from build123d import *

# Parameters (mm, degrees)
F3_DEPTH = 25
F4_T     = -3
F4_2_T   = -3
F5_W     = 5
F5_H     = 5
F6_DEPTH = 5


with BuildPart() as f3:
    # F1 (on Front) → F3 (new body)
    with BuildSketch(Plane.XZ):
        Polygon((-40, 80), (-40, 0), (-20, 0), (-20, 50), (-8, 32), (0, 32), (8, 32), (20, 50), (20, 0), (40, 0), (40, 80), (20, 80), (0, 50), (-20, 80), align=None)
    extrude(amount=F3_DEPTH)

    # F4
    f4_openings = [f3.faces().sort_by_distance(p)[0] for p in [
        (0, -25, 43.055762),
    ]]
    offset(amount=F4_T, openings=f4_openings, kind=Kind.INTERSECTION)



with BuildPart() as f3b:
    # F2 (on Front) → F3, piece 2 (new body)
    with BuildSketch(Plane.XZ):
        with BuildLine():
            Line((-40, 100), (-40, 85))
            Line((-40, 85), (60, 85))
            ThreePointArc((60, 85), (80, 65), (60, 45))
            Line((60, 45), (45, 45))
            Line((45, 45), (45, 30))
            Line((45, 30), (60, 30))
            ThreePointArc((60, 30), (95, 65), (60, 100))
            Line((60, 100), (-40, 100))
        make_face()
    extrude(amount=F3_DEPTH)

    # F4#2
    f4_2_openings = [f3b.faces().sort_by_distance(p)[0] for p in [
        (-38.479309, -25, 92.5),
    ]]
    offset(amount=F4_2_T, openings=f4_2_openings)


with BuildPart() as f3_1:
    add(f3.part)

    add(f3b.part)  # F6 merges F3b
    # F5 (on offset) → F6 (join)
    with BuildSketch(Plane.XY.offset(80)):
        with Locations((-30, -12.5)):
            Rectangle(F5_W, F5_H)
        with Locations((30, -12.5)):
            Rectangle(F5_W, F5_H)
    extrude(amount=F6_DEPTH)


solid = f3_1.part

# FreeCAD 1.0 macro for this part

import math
import FreeCAD as App
import Part
import Sketcher
from FreeCAD import Vector
Q = App.Units.Quantity


def faces_at(feature, points):
    """Names of the faces that lie closest to the given points."""
    faces = feature.Shape.Faces
    near = lambda p: min(range(len(faces)), key=lambda i: faces[i].distToShape(Part.Vertex(*p))[0])
    return sorted({f"Face{near(p) + 1}" for p in points})

doc = App.newDocument("Part")
body = doc.addObject("PartDesign::Body", "Body")

# Sketch on XZ plane
sketch1 = body.newObject("Sketcher::SketchObject", "Sketch")
sketch1.AttachmentSupport = (doc.getObject("XZ_Plane"), [""])
sketch1.MapMode = "FlatFace"
sketch1.addGeometry([
    Part.LineSegment(Vector(-40, 80, 0), Vector(-40, 0, 0)),  # 0
    Part.LineSegment(Vector(-40, 0, 0), Vector(-20, 0, 0)),  # 1
    Part.LineSegment(Vector(-20, 0, 0), Vector(-20, 50, 0)),  # 2
    Part.LineSegment(Vector(-20, 50, 0), Vector(-8, 32, 0)),  # 3
    Part.LineSegment(Vector(-8, 32, 0), Vector(8, 32, 0)),  # 4
    Part.LineSegment(Vector(8, 32, 0), Vector(20, 50, 0)),  # 5
    Part.LineSegment(Vector(20, 50, 0), Vector(20, 0, 0)),  # 6
    Part.LineSegment(Vector(20, 0, 0), Vector(40, 0, 0)),  # 7
    Part.LineSegment(Vector(40, 0, 0), Vector(40, 80, 0)),  # 8
    Part.LineSegment(Vector(40, 80, 0), Vector(20, 80, 0)),  # 9
    Part.LineSegment(Vector(20, 80, 0), Vector(0, 50, 0)),  # 10
    Part.LineSegment(Vector(0, 50, 0), Vector(-20, 80, 0)),  # 11
    Part.LineSegment(Vector(-20, 80, 0), Vector(-40, 80, 0)),  # 12
], False)
sketch1.addConstraint([
    Sketcher.Constraint("Coincident", 0, 2, 1, 1),
    Sketcher.Constraint("Coincident", 1, 2, 2, 1),
    Sketcher.Constraint("Coincident", 2, 2, 3, 1),
    Sketcher.Constraint("Coincident", 3, 2, 4, 1),
    Sketcher.Constraint("Coincident", 4, 2, 5, 1),
    Sketcher.Constraint("Coincident", 5, 2, 6, 1),
    Sketcher.Constraint("Coincident", 6, 2, 7, 1),
    Sketcher.Constraint("Coincident", 7, 2, 8, 1),
    Sketcher.Constraint("Coincident", 8, 2, 9, 1),
    Sketcher.Constraint("Coincident", 9, 2, 10, 1),
    Sketcher.Constraint("Coincident", 10, 2, 11, 1),
    Sketcher.Constraint("Coincident", 11, 2, 12, 1),
    Sketcher.Constraint("Coincident", 12, 2, 0, 1),
    Sketcher.Constraint("Vertical", 0),
    Sketcher.Constraint("Horizontal", 1),
    Sketcher.Constraint("Vertical", 2),
    Sketcher.Constraint("Horizontal", 4),
    Sketcher.Constraint("Vertical", 6),
    Sketcher.Constraint("Horizontal", 7),
    Sketcher.Constraint("Vertical", 8),
    Sketcher.Constraint("Horizontal", 9),
    Sketcher.Constraint("Horizontal", 12),
    Sketcher.Constraint("Symmetric", 1, 2, 6, 2, -1, 1),
    Sketcher.Constraint("Symmetric", 0, 2, 7, 2, -2),
    Sketcher.Constraint("Symmetric", 9, 2, 11, 2, -2),
    Sketcher.Constraint("PointOnObject", 10, 2, -2),
    Sketcher.Constraint("Parallel", 5, 10),
    Sketcher.Constraint("Parallel", 3, 11),
    Sketcher.Constraint("Horizontal", 2, 2, 5, 2),
    Sketcher.Constraint("Horizontal", 5, 2, 10, 2),
    Sketcher.Constraint("Vertical", 6, 2, 9, 2),
    Sketcher.Constraint("DistanceX", 1, 1, 1, 2, Q("20 mm")),
    Sketcher.Constraint("DistanceX", 4, 1, 4, 2, Q("16 mm")),
    Sketcher.Constraint("DistanceY", 0, 2, 0, 1, Q("80 mm")),
    Sketcher.Constraint("DistanceY", 2, 1, 2, 2, Q("50 mm")),
    Sketcher.Constraint("DistanceX", 0, 2, -1, 1, Q("40 mm")),
])
pad1 = body.newObject("PartDesign::Pad", "Pad")
pad1.Profile = sketch1
pad1.Length = 25
doc.recompute()

thickness = body.newObject("PartDesign::Thickness", "Thickness")
thickness.Base = (pad1, faces_at(pad1, [(0, -25, 40)]))
thickness.Value = 3
thickness.Reversed = True
thickness.Join = "Intersection"
body2 = doc.addObject("PartDesign::Body", "Body001")

# Sketch on XZ plane
sketch2 = body2.newObject("Sketcher::SketchObject", "Sketch001")
sketch2.AttachmentSupport = (doc.getObject("XZ_Plane001"), [""])
sketch2.MapMode = "FlatFace"
sketch2.addGeometry([
    Part.LineSegment(Vector(-40, 100, 0), Vector(-40, 85, 0)),  # 0
    Part.LineSegment(Vector(-40, 85, 0), Vector(60, 85, 0)),  # 1
    Part.ArcOfCircle(Part.Circle(Vector(60, 65, 0), Vector(0, 0, 1), 20), math.radians(-90), math.radians(90)),  # 2
    Part.LineSegment(Vector(60, 45, 0), Vector(45, 45, 0)),  # 3
    Part.LineSegment(Vector(45, 45, 0), Vector(45, 30, 0)),  # 4
    Part.LineSegment(Vector(45, 30, 0), Vector(60, 30, 0)),  # 5
    Part.ArcOfCircle(Part.Circle(Vector(60, 65, 0), Vector(0, 0, 1), 35), math.radians(-90), math.radians(90)),  # 6
    Part.LineSegment(Vector(60, 100, 0), Vector(-40, 100, 0)),  # 7
], False)
sketch2.addConstraint([
    Sketcher.Constraint("Coincident", 0, 2, 1, 1),
    Sketcher.Constraint("Tangent", 1, 2, 2, 2),
    Sketcher.Constraint("Tangent", 2, 1, 3, 1),
    Sketcher.Constraint("Coincident", 3, 2, 4, 1),
    Sketcher.Constraint("Coincident", 4, 2, 5, 1),
    Sketcher.Constraint("Tangent", 5, 2, 6, 1),
    Sketcher.Constraint("Tangent", 6, 2, 7, 1),
    Sketcher.Constraint("Coincident", 7, 2, 0, 1),
    Sketcher.Constraint("Vertical", 0),
    Sketcher.Constraint("Horizontal", 1),
    Sketcher.Constraint("Horizontal", 3),
    Sketcher.Constraint("Vertical", 4),
    Sketcher.Constraint("Horizontal", 5),
    Sketcher.Constraint("Horizontal", 7),
    Sketcher.Constraint("Coincident", 6, 3, 2, 3),
    Sketcher.Constraint("Equal", 5, 0),
    Sketcher.Constraint("Radius", 2, Q("20 mm")),
    Sketcher.Constraint("Radius", 6, Q("35 mm")),
    Sketcher.Constraint("DistanceX", 1, 1, 1, 2, Q("100 mm")),
    Sketcher.Constraint("DistanceX", -1, 1, 2, 3, Q("60 mm")),
    Sketcher.Constraint("DistanceY", -1, 1, 2, 3, Q("65 mm")),
])
pad2 = body2.newObject("PartDesign::Pad", "Pad001")
pad2.Profile = sketch2
pad2.Length = 25
doc.recompute()

thickness2 = body2.newObject("PartDesign::Thickness", "Thickness001")
thickness2.Base = (pad2, faces_at(pad2, [(81.5, -25, 65)]))
thickness2.Value = 3
thickness2.Reversed = True
thickness2.Join = "Arc"
body.AllowCompound = True
doc.recompute()

boolean = body.newObject("PartDesign::Boolean", "Boolean")
boolean.Type = "Fuse"
boolean.addObjects([body2])

# Sketch on XY plane
sketch3 = body.newObject("Sketcher::SketchObject", "Sketch002")
sketch3.AttachmentSupport = (doc.getObject("XY_Plane"), [""])
sketch3.MapMode = "FlatFace"
sketch3.AttachmentOffset = App.Placement(Vector(0, 0, 80), App.Rotation())
sketch3.addGeometry([
    Part.LineSegment(Vector(-32, -10, 0), Vector(-32, -15, 0)),  # 0
    Part.LineSegment(Vector(-32, -15, 0), Vector(-28, -15, 0)),  # 1
    Part.LineSegment(Vector(-28, -15, 0), Vector(-28, -10, 0)),  # 2
    Part.LineSegment(Vector(-28, -10, 0), Vector(-32, -10, 0)),  # 3
    Part.LineSegment(Vector(28, -10, 0), Vector(28, -15, 0)),  # 4
    Part.LineSegment(Vector(28, -15, 0), Vector(32, -15, 0)),  # 5
    Part.LineSegment(Vector(32, -15, 0), Vector(32, -10, 0)),  # 6
    Part.LineSegment(Vector(32, -10, 0), Vector(28, -10, 0)),  # 7
], False)
sketch3.addConstraint([
    Sketcher.Constraint("Coincident", 0, 2, 1, 1),
    Sketcher.Constraint("Coincident", 1, 2, 2, 1),
    Sketcher.Constraint("Coincident", 2, 2, 3, 1),
    Sketcher.Constraint("Coincident", 3, 2, 0, 1),
    Sketcher.Constraint("Coincident", 4, 2, 5, 1),
    Sketcher.Constraint("Coincident", 5, 2, 6, 1),
    Sketcher.Constraint("Coincident", 6, 2, 7, 1),
    Sketcher.Constraint("Coincident", 7, 2, 4, 1),
    Sketcher.Constraint("Vertical", 0),
    Sketcher.Constraint("Horizontal", 1),
    Sketcher.Constraint("Vertical", 2),
    Sketcher.Constraint("Horizontal", 3),
    Sketcher.Constraint("Vertical", 4),
    Sketcher.Constraint("Horizontal", 5),
    Sketcher.Constraint("Vertical", 6),
    Sketcher.Constraint("Horizontal", 7),
    Sketcher.Constraint("Symmetric", 1, 2, 4, 2, -2),
    Sketcher.Constraint("Symmetric", 3, 2, 6, 2, -2),
    Sketcher.Constraint("Equal", 7, 0),
    Sketcher.Constraint("DistanceX", 1, 1, 1, 2, Q("5 mm")),
    Sketcher.Constraint("DistanceY", 0, 2, -1, 1, Q("15 mm")),
    Sketcher.Constraint("DistanceX", 1, 2, 4, 2, Q("55 mm")),
])
pad3 = body.newObject("PartDesign::Pad", "Pad002")
pad3.Profile = sketch3
pad3.Length = 5

doc.recompute()
